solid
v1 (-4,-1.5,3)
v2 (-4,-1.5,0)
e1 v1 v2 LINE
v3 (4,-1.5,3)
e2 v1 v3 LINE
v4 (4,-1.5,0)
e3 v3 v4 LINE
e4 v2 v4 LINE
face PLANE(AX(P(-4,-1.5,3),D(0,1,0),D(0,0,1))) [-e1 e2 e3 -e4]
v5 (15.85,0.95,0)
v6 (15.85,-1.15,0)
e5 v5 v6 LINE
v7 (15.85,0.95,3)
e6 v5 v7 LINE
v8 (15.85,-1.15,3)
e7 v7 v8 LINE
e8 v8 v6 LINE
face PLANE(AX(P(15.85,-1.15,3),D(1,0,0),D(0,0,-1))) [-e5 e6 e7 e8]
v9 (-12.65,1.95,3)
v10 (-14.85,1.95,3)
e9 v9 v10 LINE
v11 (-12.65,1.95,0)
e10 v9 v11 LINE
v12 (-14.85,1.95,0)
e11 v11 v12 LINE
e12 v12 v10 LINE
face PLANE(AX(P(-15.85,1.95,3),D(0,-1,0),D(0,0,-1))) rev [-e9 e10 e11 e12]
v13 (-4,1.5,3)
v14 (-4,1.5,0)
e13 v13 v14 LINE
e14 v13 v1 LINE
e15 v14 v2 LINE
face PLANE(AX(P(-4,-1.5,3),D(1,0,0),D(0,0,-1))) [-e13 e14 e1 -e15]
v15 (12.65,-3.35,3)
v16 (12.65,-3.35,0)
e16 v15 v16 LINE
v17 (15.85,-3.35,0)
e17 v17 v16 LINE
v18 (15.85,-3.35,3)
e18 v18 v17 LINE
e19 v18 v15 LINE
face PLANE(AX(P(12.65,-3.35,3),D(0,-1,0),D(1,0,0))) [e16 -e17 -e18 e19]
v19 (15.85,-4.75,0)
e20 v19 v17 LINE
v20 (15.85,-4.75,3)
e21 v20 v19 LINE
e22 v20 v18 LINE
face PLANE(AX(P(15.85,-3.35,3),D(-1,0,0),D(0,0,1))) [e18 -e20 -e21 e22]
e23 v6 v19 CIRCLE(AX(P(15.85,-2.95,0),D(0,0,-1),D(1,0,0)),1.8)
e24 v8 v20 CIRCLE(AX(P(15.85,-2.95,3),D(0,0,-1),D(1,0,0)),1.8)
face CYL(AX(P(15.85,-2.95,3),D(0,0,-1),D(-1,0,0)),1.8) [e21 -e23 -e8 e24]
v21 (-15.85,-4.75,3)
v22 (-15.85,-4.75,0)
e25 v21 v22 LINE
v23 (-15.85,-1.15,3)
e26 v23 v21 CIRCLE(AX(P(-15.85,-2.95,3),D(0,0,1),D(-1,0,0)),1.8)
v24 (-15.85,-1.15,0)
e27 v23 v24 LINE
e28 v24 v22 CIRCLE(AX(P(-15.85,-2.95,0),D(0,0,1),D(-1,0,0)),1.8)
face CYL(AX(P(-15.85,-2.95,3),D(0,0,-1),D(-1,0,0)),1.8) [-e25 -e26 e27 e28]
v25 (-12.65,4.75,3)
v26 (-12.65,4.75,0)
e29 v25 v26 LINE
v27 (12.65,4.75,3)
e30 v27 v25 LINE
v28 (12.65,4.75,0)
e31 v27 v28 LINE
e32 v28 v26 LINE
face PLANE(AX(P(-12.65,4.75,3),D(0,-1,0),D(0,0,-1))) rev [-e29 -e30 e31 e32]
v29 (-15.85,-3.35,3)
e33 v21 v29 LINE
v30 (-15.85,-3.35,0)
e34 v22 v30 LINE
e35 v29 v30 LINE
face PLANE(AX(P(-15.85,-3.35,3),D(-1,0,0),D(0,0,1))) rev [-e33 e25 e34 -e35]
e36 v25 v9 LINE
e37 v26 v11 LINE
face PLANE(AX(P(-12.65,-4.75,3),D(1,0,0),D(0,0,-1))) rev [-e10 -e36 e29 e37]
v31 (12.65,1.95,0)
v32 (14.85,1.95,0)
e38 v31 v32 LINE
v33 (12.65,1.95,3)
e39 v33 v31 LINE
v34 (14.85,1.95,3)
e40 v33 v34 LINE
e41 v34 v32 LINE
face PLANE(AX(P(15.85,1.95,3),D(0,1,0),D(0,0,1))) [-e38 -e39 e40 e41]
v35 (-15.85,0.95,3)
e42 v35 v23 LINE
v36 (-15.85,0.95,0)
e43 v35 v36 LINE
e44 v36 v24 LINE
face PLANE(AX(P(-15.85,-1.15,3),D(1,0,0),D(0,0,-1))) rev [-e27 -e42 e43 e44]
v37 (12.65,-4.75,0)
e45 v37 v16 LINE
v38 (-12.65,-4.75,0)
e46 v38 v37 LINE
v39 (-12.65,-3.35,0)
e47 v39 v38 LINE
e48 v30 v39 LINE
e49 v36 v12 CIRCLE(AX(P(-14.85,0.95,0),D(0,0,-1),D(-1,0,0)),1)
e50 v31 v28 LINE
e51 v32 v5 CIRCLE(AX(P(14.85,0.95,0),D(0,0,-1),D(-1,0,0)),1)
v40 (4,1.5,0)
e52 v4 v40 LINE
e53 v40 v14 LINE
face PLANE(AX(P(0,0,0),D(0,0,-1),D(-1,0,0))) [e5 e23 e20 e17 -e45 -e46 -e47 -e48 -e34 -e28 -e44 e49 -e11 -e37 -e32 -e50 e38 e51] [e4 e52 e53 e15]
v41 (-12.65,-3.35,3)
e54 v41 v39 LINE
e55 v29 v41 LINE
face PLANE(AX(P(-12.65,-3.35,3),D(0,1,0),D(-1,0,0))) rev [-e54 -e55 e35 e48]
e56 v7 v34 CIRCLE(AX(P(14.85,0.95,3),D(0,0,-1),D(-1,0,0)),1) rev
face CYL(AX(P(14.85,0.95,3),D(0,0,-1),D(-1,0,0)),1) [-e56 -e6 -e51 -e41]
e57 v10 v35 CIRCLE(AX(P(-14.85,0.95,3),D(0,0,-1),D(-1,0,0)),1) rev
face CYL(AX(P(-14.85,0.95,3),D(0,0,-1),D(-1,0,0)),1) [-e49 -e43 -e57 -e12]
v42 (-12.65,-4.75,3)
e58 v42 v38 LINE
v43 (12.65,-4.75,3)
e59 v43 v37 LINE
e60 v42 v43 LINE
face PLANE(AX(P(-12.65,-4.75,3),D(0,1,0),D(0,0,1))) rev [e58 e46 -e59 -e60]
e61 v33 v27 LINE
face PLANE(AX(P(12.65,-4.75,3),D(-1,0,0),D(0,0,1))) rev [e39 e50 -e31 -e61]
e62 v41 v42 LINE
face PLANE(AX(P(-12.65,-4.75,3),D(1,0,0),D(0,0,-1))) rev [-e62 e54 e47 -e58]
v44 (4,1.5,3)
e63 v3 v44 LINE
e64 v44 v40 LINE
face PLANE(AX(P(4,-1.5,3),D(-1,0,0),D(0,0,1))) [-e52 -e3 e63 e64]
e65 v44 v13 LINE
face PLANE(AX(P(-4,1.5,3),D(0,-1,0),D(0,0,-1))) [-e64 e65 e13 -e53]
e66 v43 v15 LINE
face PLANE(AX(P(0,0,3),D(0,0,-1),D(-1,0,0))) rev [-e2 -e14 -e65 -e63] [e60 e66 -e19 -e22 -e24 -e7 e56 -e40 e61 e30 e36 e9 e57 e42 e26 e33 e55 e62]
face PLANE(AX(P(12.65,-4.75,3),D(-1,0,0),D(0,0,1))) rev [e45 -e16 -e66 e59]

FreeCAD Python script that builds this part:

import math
import FreeCAD as App
import Part
import Sketcher
from FreeCAD import Vector


def edges_at(feature, points):
    """Names of the edges that pass closest to the given points."""
    edges = feature.Shape.Edges
    near = lambda p: min(range(len(edges)), key=lambda i: edges[i].distToShape(Part.Vertex(*p))[0])
    return sorted({f"Edge{near(p) + 1}" for p in points})


def add_polygon(sketch, points):
    """Adds a closed chain of lines whose ends are joined by coincident constraints."""
    first, n = sketch.GeometryCount, len(points)
    for a, b in zip(points, points[1:] + points[:1]):
        sketch.addGeometry(Part.LineSegment(App.Vector(*a, 0), App.Vector(*b, 0)), False)
    for i in range(n):
        sketch.addConstraint(Sketcher.Constraint("Coincident", first + i, 2, first + (i + 1) % n, 1))

doc = App.newDocument("Part")
body = doc.addObject("PartDesign::Body", "Body")

# Sketch on XY plane
sketch1 = body.newObject("Sketcher::SketchObject", "Sketch")
sketch1.AttachmentSupport = (doc.getObject("XY_Plane"), [""])
sketch1.MapMode = "FlatFace"
add_polygon(sketch1, [(-13, 5), (-13, -5), (13, -5), (13, 5)])  # lines 0-3
sketch1.addConstraint(Sketcher.Constraint("Vertical", 0))
sketch1.addConstraint(Sketcher.Constraint("Horizontal", 1))
sketch1.addConstraint(Sketcher.Constraint("Vertical", 2))
sketch1.addConstraint(Sketcher.Constraint("Horizontal", 3))
sketch1.addConstraint(Sketcher.Constraint("Symmetric", 0, 2, 2, 2, -1, 1))
sketch1.addConstraint(Sketcher.Constraint("DistanceX", 1, 1, 1, 2, 25.3))
sketch1.addConstraint(Sketcher.Constraint("DistanceY", 0, 2, 0, 1, 9.5))
pad1 = body.newObject("PartDesign::Pad", "Pad")
pad1.Profile = sketch1
pad1.Length = 3

# Sketch on XY plane
sketch2 = body.newObject("Sketcher::SketchObject", "Sketch001")
sketch2.AttachmentSupport = (doc.getObject("XY_Plane"), [""])
sketch2.MapMode = "FlatFace"
add_polygon(sketch2, [(-4, 1.5), (-4, -1.5), (4, -1.5), (4, 1.5)])  # lines 0-3
sketch2.addConstraint(Sketcher.Constraint("Vertical", 0))
sketch2.addConstraint(Sketcher.Constraint("Horizontal", 1))
sketch2.addConstraint(Sketcher.Constraint("Vertical", 2))
sketch2.addConstraint(Sketcher.Constraint("Horizontal", 3))
sketch2.addConstraint(Sketcher.Constraint("Symmetric", 0, 2, 2, 2, -1, 1))
sketch2.addConstraint(Sketcher.Constraint("DistanceX", 1, 1, 1, 2, 8.0))
sketch2.addConstraint(Sketcher.Constraint("DistanceY", 0, 2, 0, 1, 3.0))
pocket1 = body.newObject("PartDesign::Pocket", "Pocket")
pocket1.Profile = sketch2
pocket1.Type = "ThroughAll"
pocket1.Reversed = True

# Sketch on XY plane
sketch3 = body.newObject("Sketcher::SketchObject", "Sketch002")
sketch3.AttachmentSupport = (doc.getObject("XY_Plane"), [""])
sketch3.MapMode = "FlatFace"
sketch3.addGeometry(Part.LineSegment(Vector(-15.8, -3.4, 0), Vector(-12.7, -3.4, 0)), False)
sketch3.addGeometry(Part.LineSegment(Vector(-12.7, -3.4, 0), Vector(-12.7, 1.9, 0)), False)
sketch3.addGeometry(Part.LineSegment(Vector(-12.7, 1.9, 0), Vector(-15.8, 1.9, 0)), False)
sketch3.addGeometry(Part.LineSegment(Vector(-15.8, 1.9, 0), Vector(-15.8, -1.1, 0)), False)
sketch3.addGeometry(Part.ArcOfCircle(Part.Circle(Vector(-15.8, -3, 0), Vector(0, 0, 1), 1.8), math.radians(90), math.radians(270)), False)
sketch3.addGeometry(Part.LineSegment(Vector(-15.8, -4.8, 0), Vector(-15.8, -3.4, 0)), False)
sketch3.addConstraint(Sketcher.Constraint("Coincident", 0, 2, 1, 1))
sketch3.addConstraint(Sketcher.Constraint("Coincident", 1, 2, 2, 1))
sketch3.addConstraint(Sketcher.Constraint("Coincident", 2, 2, 3, 1))
sketch3.addConstraint(Sketcher.Constraint("Coincident", 3, 2, 4, 1))
sketch3.addConstraint(Sketcher.Constraint("Coincident", 4, 2, 5, 1))
sketch3.addConstraint(Sketcher.Constraint("Coincident", 5, 2, 0, 1))
sketch3.addConstraint(Sketcher.Constraint("Horizontal", 0))
sketch3.addConstraint(Sketcher.Constraint("Vertical", 1))
sketch3.addConstraint(Sketcher.Constraint("Horizontal", 2))
sketch3.addConstraint(Sketcher.Constraint("Vertical", 3))
sketch3.addConstraint(Sketcher.Constraint("Vertical", 5))
sketch3.addConstraint(Sketcher.Constraint("Vertical", 4, 3, 2, 2))
sketch3.addConstraint(Sketcher.Constraint("Vertical", 3, 2, 4, 2))
sketch3.addConstraint(Sketcher.Constraint("Radius", 4, 1.8))
sketch3.addConstraint(Sketcher.Constraint("DistanceX", 0, 1, 0, 2, 3.2))
sketch3.addConstraint(Sketcher.Constraint("DistanceY", 1, 1, 1, 2, 5.3))
sketch3.addConstraint(Sketcher.Constraint("DistanceY", 3, 2, 3, 1, 3.1))
sketch3.addConstraint(Sketcher.Constraint("DistanceX", 4, 3, -1, 1, 15.85))
sketch3.addConstraint(Sketcher.Constraint("DistanceY", 4, 3, -1, 1, 2.95))
pad2 = body.newObject("PartDesign::Pad", "Pad001")
pad2.Profile = sketch3
pad2.Length = 3
doc.recompute()

fillet = body.newObject("PartDesign::Fillet", "Fillet")
fillet.Base = (pad2, edges_at(pad2, [(-15.85, 1.95, 1.5)]))
fillet.Radius = 1
doc.recompute()

mirrored = body.newObject("PartDesign::Mirrored", "Mirrored")
mirrored.Originals = [pad2]
mirrored.MirrorPlane = (doc.getObject("YZ_Plane"), [""])
body.Tip = mirrored
doc.recompute()

fillet2 = body.newObject("PartDesign::Fillet", "Fillet001")
fillet2.Base = (mirrored, edges_at(mirrored, [(15.85, 1.95, 1.5)]))
fillet2.Radius = 1

doc.recompute()
